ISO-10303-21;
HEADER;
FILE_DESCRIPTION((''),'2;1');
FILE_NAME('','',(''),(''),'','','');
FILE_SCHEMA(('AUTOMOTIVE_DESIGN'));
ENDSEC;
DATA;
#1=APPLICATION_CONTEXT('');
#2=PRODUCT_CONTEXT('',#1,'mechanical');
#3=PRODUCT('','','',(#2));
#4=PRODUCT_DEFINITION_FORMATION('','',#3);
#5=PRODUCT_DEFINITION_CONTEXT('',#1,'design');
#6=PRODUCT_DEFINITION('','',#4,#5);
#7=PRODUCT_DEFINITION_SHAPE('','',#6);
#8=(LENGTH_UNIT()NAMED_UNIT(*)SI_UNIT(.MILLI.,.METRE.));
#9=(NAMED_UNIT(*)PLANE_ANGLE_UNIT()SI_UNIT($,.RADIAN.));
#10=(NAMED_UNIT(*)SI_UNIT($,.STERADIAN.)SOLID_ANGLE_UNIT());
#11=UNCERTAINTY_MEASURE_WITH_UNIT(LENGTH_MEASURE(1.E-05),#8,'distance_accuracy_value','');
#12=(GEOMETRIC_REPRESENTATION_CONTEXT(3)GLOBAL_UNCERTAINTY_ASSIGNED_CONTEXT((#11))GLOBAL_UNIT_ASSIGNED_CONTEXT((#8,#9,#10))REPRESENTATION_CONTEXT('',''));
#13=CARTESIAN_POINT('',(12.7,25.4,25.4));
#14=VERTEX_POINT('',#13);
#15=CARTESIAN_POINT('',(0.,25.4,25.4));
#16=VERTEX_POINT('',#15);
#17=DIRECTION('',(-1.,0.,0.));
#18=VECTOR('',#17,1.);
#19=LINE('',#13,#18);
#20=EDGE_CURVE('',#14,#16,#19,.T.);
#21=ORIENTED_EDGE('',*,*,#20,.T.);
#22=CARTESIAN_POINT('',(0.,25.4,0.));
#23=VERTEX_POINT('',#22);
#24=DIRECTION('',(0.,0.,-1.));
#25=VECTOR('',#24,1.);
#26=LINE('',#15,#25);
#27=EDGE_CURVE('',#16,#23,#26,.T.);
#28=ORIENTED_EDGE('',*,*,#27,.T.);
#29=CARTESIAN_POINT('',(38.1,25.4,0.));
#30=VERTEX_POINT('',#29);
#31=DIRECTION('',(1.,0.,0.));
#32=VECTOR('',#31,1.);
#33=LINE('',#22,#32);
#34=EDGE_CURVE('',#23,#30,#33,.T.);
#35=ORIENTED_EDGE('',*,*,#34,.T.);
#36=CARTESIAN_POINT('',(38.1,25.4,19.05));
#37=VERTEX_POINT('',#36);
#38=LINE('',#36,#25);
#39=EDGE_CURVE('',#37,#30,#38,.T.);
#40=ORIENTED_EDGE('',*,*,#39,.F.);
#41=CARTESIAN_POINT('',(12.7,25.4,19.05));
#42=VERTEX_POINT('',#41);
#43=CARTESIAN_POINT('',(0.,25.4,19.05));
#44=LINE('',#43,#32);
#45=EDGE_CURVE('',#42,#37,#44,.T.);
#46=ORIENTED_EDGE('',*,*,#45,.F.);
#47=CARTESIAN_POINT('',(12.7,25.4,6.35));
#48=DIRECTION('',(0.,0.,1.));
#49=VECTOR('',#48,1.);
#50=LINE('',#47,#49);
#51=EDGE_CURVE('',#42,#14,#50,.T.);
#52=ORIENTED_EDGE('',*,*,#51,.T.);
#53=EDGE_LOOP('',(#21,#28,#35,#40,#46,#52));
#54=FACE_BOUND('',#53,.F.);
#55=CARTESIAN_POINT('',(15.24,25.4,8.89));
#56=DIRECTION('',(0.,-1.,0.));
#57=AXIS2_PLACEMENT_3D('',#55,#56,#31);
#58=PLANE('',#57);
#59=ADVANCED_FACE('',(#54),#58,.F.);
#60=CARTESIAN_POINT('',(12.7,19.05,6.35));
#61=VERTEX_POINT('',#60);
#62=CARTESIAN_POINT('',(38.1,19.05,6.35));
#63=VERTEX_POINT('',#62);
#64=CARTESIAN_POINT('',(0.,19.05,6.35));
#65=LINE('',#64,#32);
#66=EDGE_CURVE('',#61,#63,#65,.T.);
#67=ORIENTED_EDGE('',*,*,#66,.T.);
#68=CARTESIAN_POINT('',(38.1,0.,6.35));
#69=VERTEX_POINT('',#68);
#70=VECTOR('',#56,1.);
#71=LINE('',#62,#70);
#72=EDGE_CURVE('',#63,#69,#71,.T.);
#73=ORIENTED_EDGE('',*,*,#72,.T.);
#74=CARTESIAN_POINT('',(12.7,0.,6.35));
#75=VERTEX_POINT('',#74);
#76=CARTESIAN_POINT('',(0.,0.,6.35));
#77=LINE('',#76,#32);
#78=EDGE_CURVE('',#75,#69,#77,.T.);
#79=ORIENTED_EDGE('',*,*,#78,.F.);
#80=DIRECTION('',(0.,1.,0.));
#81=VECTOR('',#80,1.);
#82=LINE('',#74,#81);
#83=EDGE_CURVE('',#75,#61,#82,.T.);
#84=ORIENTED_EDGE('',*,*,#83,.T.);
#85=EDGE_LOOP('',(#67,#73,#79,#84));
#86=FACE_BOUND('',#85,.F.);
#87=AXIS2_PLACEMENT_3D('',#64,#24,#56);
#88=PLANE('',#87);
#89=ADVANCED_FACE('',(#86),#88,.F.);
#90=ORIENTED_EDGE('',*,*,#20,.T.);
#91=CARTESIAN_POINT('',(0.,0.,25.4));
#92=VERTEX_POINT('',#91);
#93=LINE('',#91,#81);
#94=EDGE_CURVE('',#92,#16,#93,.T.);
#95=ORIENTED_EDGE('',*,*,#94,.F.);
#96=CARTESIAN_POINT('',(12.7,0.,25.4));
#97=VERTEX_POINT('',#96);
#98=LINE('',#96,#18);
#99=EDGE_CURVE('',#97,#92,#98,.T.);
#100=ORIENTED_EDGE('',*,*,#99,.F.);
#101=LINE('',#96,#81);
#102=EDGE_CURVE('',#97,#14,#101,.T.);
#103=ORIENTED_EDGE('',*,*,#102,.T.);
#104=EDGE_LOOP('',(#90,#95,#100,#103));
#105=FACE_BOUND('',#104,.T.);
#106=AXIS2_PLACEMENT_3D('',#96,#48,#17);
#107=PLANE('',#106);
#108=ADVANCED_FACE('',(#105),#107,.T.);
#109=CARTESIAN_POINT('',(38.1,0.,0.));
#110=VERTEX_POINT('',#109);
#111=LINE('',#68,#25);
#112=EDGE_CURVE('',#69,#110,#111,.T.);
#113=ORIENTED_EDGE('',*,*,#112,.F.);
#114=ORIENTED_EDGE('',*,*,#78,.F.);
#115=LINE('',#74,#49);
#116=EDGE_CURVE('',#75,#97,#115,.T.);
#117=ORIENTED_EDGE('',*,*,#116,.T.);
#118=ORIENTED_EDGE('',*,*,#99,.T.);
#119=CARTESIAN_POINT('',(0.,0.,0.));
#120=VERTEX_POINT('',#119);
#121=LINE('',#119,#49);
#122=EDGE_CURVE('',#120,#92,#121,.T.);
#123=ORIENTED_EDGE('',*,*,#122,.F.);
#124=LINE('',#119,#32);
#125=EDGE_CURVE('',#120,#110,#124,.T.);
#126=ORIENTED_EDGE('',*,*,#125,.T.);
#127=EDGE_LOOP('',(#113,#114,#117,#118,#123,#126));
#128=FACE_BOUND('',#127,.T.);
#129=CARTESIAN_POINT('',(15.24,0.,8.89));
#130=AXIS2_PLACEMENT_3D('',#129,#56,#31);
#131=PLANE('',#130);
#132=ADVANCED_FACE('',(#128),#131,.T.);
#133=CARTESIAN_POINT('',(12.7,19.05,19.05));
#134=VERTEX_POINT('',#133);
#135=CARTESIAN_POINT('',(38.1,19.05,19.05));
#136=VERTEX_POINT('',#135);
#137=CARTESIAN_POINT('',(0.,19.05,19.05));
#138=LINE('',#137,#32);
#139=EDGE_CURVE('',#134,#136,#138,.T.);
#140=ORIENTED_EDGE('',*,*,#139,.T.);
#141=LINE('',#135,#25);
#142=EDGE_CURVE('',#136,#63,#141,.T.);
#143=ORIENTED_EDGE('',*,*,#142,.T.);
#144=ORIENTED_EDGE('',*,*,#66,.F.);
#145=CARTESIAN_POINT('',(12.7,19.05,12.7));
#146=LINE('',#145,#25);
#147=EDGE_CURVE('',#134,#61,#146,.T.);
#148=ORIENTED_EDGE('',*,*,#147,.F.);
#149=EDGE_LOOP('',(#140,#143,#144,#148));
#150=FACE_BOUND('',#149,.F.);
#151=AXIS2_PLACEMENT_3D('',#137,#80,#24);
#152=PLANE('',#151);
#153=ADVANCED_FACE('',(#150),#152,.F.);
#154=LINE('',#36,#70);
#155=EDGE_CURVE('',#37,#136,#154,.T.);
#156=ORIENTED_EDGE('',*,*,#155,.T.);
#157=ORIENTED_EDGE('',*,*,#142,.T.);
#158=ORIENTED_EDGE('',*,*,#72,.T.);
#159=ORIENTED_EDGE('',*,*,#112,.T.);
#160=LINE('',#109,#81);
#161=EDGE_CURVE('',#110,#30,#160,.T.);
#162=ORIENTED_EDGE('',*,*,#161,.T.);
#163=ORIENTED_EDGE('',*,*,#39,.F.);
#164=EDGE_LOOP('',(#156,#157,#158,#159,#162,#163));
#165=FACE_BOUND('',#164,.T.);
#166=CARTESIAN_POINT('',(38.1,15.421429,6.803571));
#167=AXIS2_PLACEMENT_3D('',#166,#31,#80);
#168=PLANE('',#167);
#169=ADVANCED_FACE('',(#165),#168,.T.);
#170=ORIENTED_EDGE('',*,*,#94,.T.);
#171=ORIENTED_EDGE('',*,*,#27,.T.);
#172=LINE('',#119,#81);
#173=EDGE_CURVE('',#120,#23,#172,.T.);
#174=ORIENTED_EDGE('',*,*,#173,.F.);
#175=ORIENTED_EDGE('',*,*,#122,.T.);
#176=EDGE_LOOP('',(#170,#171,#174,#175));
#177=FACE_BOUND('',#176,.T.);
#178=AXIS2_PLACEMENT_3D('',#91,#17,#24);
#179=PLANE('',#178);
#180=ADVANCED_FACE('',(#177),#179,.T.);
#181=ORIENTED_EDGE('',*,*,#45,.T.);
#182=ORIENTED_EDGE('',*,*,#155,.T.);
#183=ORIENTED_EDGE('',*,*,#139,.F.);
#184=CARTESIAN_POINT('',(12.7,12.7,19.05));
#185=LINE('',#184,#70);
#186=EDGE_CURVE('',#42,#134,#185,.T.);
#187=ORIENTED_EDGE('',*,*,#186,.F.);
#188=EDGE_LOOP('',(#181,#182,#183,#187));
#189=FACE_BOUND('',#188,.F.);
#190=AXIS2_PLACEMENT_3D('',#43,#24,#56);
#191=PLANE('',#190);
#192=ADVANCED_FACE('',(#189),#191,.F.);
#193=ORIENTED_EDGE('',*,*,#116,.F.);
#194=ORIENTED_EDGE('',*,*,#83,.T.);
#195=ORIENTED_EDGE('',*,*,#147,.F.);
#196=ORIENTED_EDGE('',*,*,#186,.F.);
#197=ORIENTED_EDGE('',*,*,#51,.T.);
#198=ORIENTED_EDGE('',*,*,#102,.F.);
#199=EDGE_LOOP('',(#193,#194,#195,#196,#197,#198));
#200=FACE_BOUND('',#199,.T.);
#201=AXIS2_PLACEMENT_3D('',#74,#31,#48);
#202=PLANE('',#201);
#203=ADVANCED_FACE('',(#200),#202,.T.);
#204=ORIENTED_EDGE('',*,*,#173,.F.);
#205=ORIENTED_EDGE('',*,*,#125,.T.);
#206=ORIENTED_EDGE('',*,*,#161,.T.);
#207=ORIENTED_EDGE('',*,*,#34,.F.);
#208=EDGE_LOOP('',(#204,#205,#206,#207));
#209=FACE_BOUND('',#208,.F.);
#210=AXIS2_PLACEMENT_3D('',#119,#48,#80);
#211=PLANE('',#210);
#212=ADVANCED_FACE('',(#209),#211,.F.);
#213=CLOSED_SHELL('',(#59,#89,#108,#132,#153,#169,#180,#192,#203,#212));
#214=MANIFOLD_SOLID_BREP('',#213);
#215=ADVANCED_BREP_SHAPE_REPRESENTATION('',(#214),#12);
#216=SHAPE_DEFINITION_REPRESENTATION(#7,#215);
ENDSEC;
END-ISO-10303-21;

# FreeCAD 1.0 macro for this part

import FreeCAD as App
import Part
import Sketcher
Q = App.Units.Quantity


def add_polygon(sketch, points):
    """Adds a closed chain of lines whose ends are joined by coincident constraints."""
    first, n = sketch.GeometryCount, len(points)
    for a, b in zip(points, points[1:] + points[:1]):
        sketch.addGeometry(Part.LineSegment(App.Vector(*a, 0), App.Vector(*b, 0)), False)
    for i in range(n):
        sketch.addConstraint(Sketcher.Constraint("Coincident", first + i, 2, first + (i + 1) % n, 1))

doc = App.newDocument("Part")
body = doc.addObject("PartDesign::Body", "Body")

# Sketch on YZ plane
sketch1 = body.newObject("Sketcher::SketchObject", "Sketch")
sketch1.AttachmentSupport = (doc.getObject("YZ_Plane"), [""])
sketch1.MapMode = "FlatFace"
add_polygon(sketch1, [(0, 6.35), (0, 0), (25.4, 0), (25.4, 19.05), (19.05, 19.05), (19.05, 6.35)])  # lines 0-5
sketch1.addConstraint(Sketcher.Constraint("Vertical", 0))
sketch1.addConstraint(Sketcher.Constraint("Horizontal", 1))
sketch1.addConstraint(Sketcher.Constraint("Vertical", 2))
sketch1.addConstraint(Sketcher.Constraint("Horizontal", 3))
sketch1.addConstraint(Sketcher.Constraint("Vertical", 4))
sketch1.addConstraint(Sketcher.Constraint("Horizontal", 5))
sketch1.addConstraint(Sketcher.Constraint("Coincident", 0, 2, -1, 1))
sketch1.addConstraint(Sketcher.Constraint("Equal", 3, 0))
sketch1.addConstraint(Sketcher.Constraint("Equal", 5, 2))
sketch1.addConstraint(Sketcher.Constraint("DistanceX", 1, 1, 1, 2, Q("1 in")))
sketch1.addConstraint(Sketcher.Constraint("DistanceY", 4, 2, 4, 1, Q("0.5 in")))
pad1 = body.newObject("PartDesign::Pad", "Pad")
pad1.Profile = sketch1
pad1.Length = Q("1.5 in")

# Sketch on XZ plane
sketch2 = body.newObject("Sketcher::SketchObject", "Sketch001")
sketch2.AttachmentSupport = (doc.getObject("XZ_Plane"), [""])
sketch2.MapMode = "FlatFace"
add_polygon(sketch2, [(0, 25.4), (0, 0), (38.1, 0), (38.1, 6.35), (12.7, 6.35), (12.7, 25.4)])  # lines 0-5
sketch2.addConstraint(Sketcher.Constraint("Vertical", 0))
sketch2.addConstraint(Sketcher.Constraint("Horizontal", 1))
sketch2.addConstraint(Sketcher.Constraint("Vertical", 2))
sketch2.addConstraint(Sketcher.Constraint("Horizontal", 3))
sketch2.addConstraint(Sketcher.Constraint("Vertical", 4))
sketch2.addConstraint(Sketcher.Constraint("Horizontal", 5))
sketch2.addConstraint(Sketcher.Constraint("Coincident", 0, 2, -1, 1))
sketch2.addConstraint(Sketcher.Constraint("Equal", 3, 0))
sketch2.addConstraint(Sketcher.Constraint("DistanceX", 3, 2, 3, 1, Q("1 in")))
sketch2.addConstraint(Sketcher.Constraint("DistanceX", 1, 1, 1, 2, Q("1.5 in")))
sketch2.addConstraint(Sketcher.Constraint("DistanceY", 2, 1, 2, 2, Q("0.25 in")))
pad2 = body.newObject("PartDesign::Pad", "Pad001")
pad2.Profile = sketch2
pad2.Length = Q("1 in")
pad2.Reversed = True

doc.recompute()
